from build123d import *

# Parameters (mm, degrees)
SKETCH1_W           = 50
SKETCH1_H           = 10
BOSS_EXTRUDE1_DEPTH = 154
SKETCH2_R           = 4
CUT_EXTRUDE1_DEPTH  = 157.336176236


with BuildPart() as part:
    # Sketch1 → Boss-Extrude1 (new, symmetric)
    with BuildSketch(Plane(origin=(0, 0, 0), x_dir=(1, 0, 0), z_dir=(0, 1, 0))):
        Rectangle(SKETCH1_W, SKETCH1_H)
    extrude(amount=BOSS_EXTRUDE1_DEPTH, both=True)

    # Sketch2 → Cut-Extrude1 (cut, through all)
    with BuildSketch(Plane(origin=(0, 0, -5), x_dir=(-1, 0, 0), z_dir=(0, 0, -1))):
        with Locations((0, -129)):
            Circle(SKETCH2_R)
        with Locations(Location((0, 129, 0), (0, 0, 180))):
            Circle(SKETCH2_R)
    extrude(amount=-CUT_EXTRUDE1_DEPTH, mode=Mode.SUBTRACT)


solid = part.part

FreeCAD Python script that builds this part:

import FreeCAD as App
import Part
import Sketcher

V = App.Vector
Q = App.Units.Quantity

doc = App.newDocument("Part")
body = doc.addObject("PartDesign::Body", "Body")

# Sketch on XZ plane
sketch1 = body.newObject("Sketcher::SketchObject", "Sketch")
sketch1.AttachmentSupport = (doc.getObject("XZ_Plane"), [""])
sketch1.MapMode = "FlatFace"
sketch1.addGeometry(Part.LineSegment(V(-25, -5, 0), V(-25, 5, 0)), False)
sketch1.addGeometry(Part.LineSegment(V(-25, 5, 0), V(25, 5, 0)), False)
sketch1.addGeometry(Part.LineSegment(V(25, 5, 0), V(25, -5, 0)), False)
sketch1.addGeometry(Part.LineSegment(V(25, -5, 0), V(-25, -5, 0)), False)
sketch1.addConstraint(Sketcher.Constraint("Coincident", 0, 2, 1, 1))
sketch1.addConstraint(Sketcher.Constraint("Coincident", 1, 2, 2, 1))
sketch1.addConstraint(Sketcher.Constraint("Coincident", 2, 2, 3, 1))
sketch1.addConstraint(Sketcher.Constraint("Coincident", 3, 2, 0, 1))
sketch1.addConstraint(Sketcher.Constraint("Vertical", 0))
sketch1.addConstraint(Sketcher.Constraint("Horizontal", 1))
sketch1.addConstraint(Sketcher.Constraint("Vertical", 2))
sketch1.addConstraint(Sketcher.Constraint("Horizontal", 3))
sketch1.addConstraint(Sketcher.Constraint("Symmetric", 0, 2, 2, 2, -1, 1))
sketch1.addConstraint(Sketcher.Constraint("DistanceX", 1, 1, 1, 2, Q("50 mm")))
sketch1.addConstraint(Sketcher.Constraint("DistanceY", 0, 1, 0, 2, Q("10 mm")))
pad1 = body.newObject("PartDesign::Pad", "Pad")
pad1.Profile = sketch1
pad1.Length = 308
pad1.Midplane = True

# Sketch on XY plane
sketch2 = body.newObject("Sketcher::SketchObject", "Sketch001")
sketch2.AttachmentSupport = (doc.getObject("XY_Plane"), [""])
sketch2.MapMode = "FlatFace"
sketch2.AttachmentOffset = App.Placement(V(0, 0, -5), App.Rotation())
sketch2.addGeometry(Part.Circle(V(0, -129, 0), V(0, 0, 1), 4), False)
sketch2.addGeometry(Part.Circle(V(0, 129, 0), V(0, 0, 1), 4), False)
sketch2.addConstraint(Sketcher.Constraint("Equal", 0, 1))
sketch2.addConstraint(Sketcher.Constraint("Symmetric", 0, 3, 1, 3, -1, 1))
sketch2.addConstraint(Sketcher.Constraint("PointOnObject", 0, 3, -2))
sketch2.addConstraint(Sketcher.Constraint("Diameter", 0, Q("8 mm")))
sketch2.addConstraint(Sketcher.Constraint("DistanceY", 0, 3, -1, 1, Q("129 mm")))
pocket1 = body.newObject("PartDesign::Pocket", "Pocket")
pocket1.Profile = sketch2
pocket1.Type = "ThroughAll"
pocket1.Reversed = True

doc.recompute()
